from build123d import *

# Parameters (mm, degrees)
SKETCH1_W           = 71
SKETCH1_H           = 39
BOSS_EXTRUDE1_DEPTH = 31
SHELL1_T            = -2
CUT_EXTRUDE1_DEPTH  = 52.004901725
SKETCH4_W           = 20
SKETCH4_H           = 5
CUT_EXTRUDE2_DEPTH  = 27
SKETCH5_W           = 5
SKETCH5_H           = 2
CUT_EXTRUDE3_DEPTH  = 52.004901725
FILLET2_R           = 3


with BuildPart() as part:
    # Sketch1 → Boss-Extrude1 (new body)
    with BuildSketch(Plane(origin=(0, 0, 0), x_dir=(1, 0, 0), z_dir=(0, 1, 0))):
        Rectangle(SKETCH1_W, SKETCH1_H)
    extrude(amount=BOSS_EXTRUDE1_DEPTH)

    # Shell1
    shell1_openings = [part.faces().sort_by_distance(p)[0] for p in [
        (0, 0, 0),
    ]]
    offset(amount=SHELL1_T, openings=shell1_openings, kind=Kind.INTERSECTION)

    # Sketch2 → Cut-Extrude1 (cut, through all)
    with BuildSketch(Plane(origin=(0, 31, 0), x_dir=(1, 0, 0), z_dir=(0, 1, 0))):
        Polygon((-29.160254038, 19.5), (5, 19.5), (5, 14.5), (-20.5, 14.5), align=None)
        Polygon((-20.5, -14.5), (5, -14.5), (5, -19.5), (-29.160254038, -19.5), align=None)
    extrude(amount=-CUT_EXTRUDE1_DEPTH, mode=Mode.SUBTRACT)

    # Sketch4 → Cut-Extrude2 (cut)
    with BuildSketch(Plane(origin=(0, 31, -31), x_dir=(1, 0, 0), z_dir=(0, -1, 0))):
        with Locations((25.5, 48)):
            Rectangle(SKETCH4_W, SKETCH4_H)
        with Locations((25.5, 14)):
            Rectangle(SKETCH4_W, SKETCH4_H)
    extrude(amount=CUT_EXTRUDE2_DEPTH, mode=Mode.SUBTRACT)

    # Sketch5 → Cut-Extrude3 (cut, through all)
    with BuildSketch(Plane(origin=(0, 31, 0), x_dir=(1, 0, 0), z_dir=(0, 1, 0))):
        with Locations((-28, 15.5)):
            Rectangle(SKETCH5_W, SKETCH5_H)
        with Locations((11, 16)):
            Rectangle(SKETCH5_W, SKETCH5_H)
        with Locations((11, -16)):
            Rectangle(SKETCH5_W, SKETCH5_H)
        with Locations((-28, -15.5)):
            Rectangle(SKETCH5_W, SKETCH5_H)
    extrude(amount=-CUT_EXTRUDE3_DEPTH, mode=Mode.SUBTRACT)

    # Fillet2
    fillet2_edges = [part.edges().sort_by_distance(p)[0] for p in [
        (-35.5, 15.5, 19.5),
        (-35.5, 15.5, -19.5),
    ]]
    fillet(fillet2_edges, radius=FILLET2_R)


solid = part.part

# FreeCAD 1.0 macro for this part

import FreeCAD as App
import Part
import Sketcher

V = App.Vector
Q = App.Units.Quantity


def edges_at(feature, points):
    """Names of the edges that pass closest to the given points."""
    edges = feature.Shape.Edges
    near = lambda p: min(range(len(edges)), key=lambda i: edges[i].distToShape(Part.Vertex(*p))[0])
    return sorted({f"Edge{near(p) + 1}" for p in points})


def faces_at(feature, points):
    """Names of the faces that lie closest to the given points."""
    faces = feature.Shape.Faces
    near = lambda p: min(range(len(faces)), key=lambda i: faces[i].distToShape(Part.Vertex(*p))[0])
    return sorted({f"Face{near(p) + 1}" for p in points})

doc = App.newDocument("Part")
body = doc.addObject("PartDesign::Body", "Body")

# Sketch on XZ plane
sketch1 = doc.addObject("Sketcher::SketchObject", "Sketch")
body.addObject(sketch1)
sketch1.AttachmentSupport = (doc.XZ_Plane, [""])
sketch1.MapMode = "FlatFace"
sketch1.addGeometry(Part.LineSegment(V(-35.5, -19.5, 0), V(-35.5, 19.5, 0)), False)
sketch1.addGeometry(Part.LineSegment(V(-35.5, 19.5, 0), V(35.5, 19.5, 0)), False)
sketch1.addGeometry(Part.LineSegment(V(35.5, 19.5, 0), V(35.5, -19.5, 0)), False)
sketch1.addGeometry(Part.LineSegment(V(35.5, -19.5, 0), V(-35.5, -19.5, 0)), False)
sketch1.addConstraint(Sketcher.Constraint("Coincident", 0, 2, 1, 1))
sketch1.addConstraint(Sketcher.Constraint("Coincident", 1, 2, 2, 1))
sketch1.addConstraint(Sketcher.Constraint("Coincident", 2, 2, 3, 1))
sketch1.addConstraint(Sketcher.Constraint("Coincident", 3, 2, 0, 1))
sketch1.addConstraint(Sketcher.Constraint("Vertical", 0))
sketch1.addConstraint(Sketcher.Constraint("Horizontal", 1))
sketch1.addConstraint(Sketcher.Constraint("Vertical", 2))
sketch1.addConstraint(Sketcher.Constraint("Horizontal", 3))
sketch1.addConstraint(Sketcher.Constraint("Symmetric", 0, 2, 2, 2, -1, 1))
sketch1.addConstraint(Sketcher.Constraint("DistanceX", 1, 1, 1, 2, Q("71 mm")))
sketch1.addConstraint(Sketcher.Constraint("DistanceY", 0, 1, 0, 2, Q("39 mm")))
pad1 = doc.addObject("PartDesign::Pad", "Pad")
body.addObject(pad1)
pad1.Profile = sketch1
pad1.Length = 31
pad1.Reversed = True
doc.recompute()

thickness = doc.addObject("PartDesign::Thickness", "Thickness")
body.addObject(thickness)
thickness.Base = (pad1, faces_at(pad1, [(0, 0, 0)]))
thickness.Value = 2
thickness.Reversed = True
thickness.Join = "Intersection"

# Sketch on XZ plane
sketch2 = doc.addObject("Sketcher::SketchObject", "Sketch001")
body.addObject(sketch2)
sketch2.AttachmentSupport = (doc.XZ_Plane, [""])
sketch2.MapMode = "FlatFace"
sketch2.AttachmentOffset = App.Placement(V(0, 0, -31), App.Rotation())
sketch2.addGeometry(Part.LineSegment(V(5, -19.5, 0), V(-29.160254, -19.5, 0)), False)
sketch2.addGeometry(Part.LineSegment(V(-29.160254, -19.5, 0), V(-20.5, -14.5, 0)), False)
sketch2.addGeometry(Part.LineSegment(V(-20.5, -14.5, 0), V(5, -14.5, 0)), False)
sketch2.addGeometry(Part.LineSegment(V(5, -14.5, 0), V(5, -19.5, 0)), False)
sketch2.addGeometry(Part.LineSegment(V(5, 14.5, 0), V(-20.5, 14.5, 0)), False)
sketch2.addGeometry(Part.LineSegment(V(-20.5, 14.5, 0), V(-29.160254, 19.5, 0)), False)
sketch2.addGeometry(Part.LineSegment(V(-29.160254, 19.5, 0), V(5, 19.5, 0)), False)
sketch2.addGeometry(Part.LineSegment(V(5, 19.5, 0), V(5, 14.5, 0)), False)
sketch2.addConstraint(Sketcher.Constraint("Coincident", 0, 2, 1, 1))
sketch2.addConstraint(Sketcher.Constraint("Coincident", 1, 2, 2, 1))
sketch2.addConstraint(Sketcher.Constraint("Coincident", 2, 2, 3, 1))
sketch2.addConstraint(Sketcher.Constraint("Coincident", 3, 2, 0, 1))
sketch2.addConstraint(Sketcher.Constraint("Coincident", 4, 2, 5, 1))
sketch2.addConstraint(Sketcher.Constraint("Coincident", 5, 2, 6, 1))
sketch2.addConstraint(Sketcher.Constraint("Coincident", 6, 2, 7, 1))
sketch2.addConstraint(Sketcher.Constraint("Coincident", 7, 2, 4, 1))
sketch2.addConstraint(Sketcher.Constraint("Horizontal", 0))
sketch2.addConstraint(Sketcher.Constraint("Horizontal", 2))
sketch2.addConstraint(Sketcher.Constraint("Vertical", 3))
sketch2.addConstraint(Sketcher.Constraint("Horizontal", 4))
sketch2.addConstraint(Sketcher.Constraint("Horizontal", 6))
sketch2.addConstraint(Sketcher.Constraint("Vertical", 7))
sketch2.addConstraint(Sketcher.Constraint("Symmetric", 1, 2, 4, 2, -1))
sketch2.addConstraint(Sketcher.Constraint("Symmetric", 0, 2, 5, 2, -1))
sketch2.addConstraint(Sketcher.Constraint("Vertical", 3, 2, 6, 2))
sketch2.addConstraint(Sketcher.Constraint("DistanceY", 3, 2, 3, 1, Q("5 mm")))
sketch2.addConstraint(Sketcher.Constraint("Angle", 1, Q("30 deg")))
sketch2.addConstraint(Sketcher.Constraint("DistanceX", 2, 1, 2, 2, Q("25.5 mm")))
sketch2.addConstraint(Sketcher.Constraint("DistanceX", -1, 1, 2, 2, Q("5 mm")))
sketch2.addConstraint(Sketcher.Constraint("DistanceY", 1, 2, 4, 2, Q("29 mm")))
pocket1 = doc.addObject("PartDesign::Pocket", "Pocket")
body.addObject(pocket1)
pocket1.Profile = sketch2
pocket1.Type = "ThroughAll"
pocket1.Reversed = True

# Sketch on XZ plane
sketch3 = doc.addObject("Sketcher::SketchObject", "Sketch002")
body.addObject(sketch3)
sketch3.AttachmentSupport = (doc.XZ_Plane, [""])
sketch3.MapMode = "FlatFace"
sketch3.AttachmentOffset = App.Placement(V(0, 0, -31), App.Rotation())
sketch3.addGeometry(Part.LineSegment(V(15.5, 19.5, 0), V(15.5, 14.5, 0)), False)
sketch3.addGeometry(Part.LineSegment(V(15.5, 14.5, 0), V(35.5, 14.5, 0)), False)
sketch3.addGeometry(Part.LineSegment(V(35.5, 14.5, 0), V(35.5, 19.5, 0)), False)
sketch3.addGeometry(Part.LineSegment(V(35.5, 19.5, 0), V(15.5, 19.5, 0)), False)
sketch3.addGeometry(Part.LineSegment(V(15.5, -14.5, 0), V(15.5, -19.5, 0)), False)
sketch3.addGeometry(Part.LineSegment(V(15.5, -19.5, 0), V(35.5, -19.5, 0)), False)
sketch3.addGeometry(Part.LineSegment(V(35.5, -19.5, 0), V(35.5, -14.5, 0)), False)
sketch3.addGeometry(Part.LineSegment(V(35.5, -14.5, 0), V(15.5, -14.5, 0)), False)
sketch3.addConstraint(Sketcher.Constraint("Coincident", 0, 2, 1, 1))
sketch3.addConstraint(Sketcher.Constraint("Coincident", 1, 2, 2, 1))
sketch3.addConstraint(Sketcher.Constraint("Coincident", 2, 2, 3, 1))
sketch3.addConstraint(Sketcher.Constraint("Coincident", 3, 2, 0, 1))
sketch3.addConstraint(Sketcher.Constraint("Coincident", 4, 2, 5, 1))
sketch3.addConstraint(Sketcher.Constraint("Coincident", 5, 2, 6, 1))
sketch3.addConstraint(Sketcher.Constraint("Coincident", 6, 2, 7, 1))
sketch3.addConstraint(Sketcher.Constraint("Coincident", 7, 2, 4, 1))
sketch3.addConstraint(Sketcher.Constraint("Vertical", 0))
sketch3.addConstraint(Sketcher.Constraint("Horizontal", 1))
sketch3.addConstraint(Sketcher.Constraint("Vertical", 2))
sketch3.addConstraint(Sketcher.Constraint("Horizontal", 3))
sketch3.addConstraint(Sketcher.Constraint("Vertical", 4))
sketch3.addConstraint(Sketcher.Constraint("Horizontal", 5))
sketch3.addConstraint(Sketcher.Constraint("Vertical", 6))
sketch3.addConstraint(Sketcher.Constraint("Horizontal", 7))
sketch3.addConstraint(Sketcher.Constraint("Symmetric", 3, 2, 4, 2, -1))
sketch3.addConstraint(Sketcher.Constraint("Symmetric", 1, 2, 6, 2, -1))
sketch3.addConstraint(Sketcher.Constraint("DistanceX", 1, 1, 1, 2, Q("20 mm")))
sketch3.addConstraint(Sketcher.Constraint("DistanceY", 0, 2, 0, 1, Q("5 mm")))
sketch3.addConstraint(Sketcher.Constraint("DistanceY", 4, 2, 0, 2, Q("34 mm")))
sketch3.addConstraint(Sketcher.Constraint("DistanceX", -1, 1, 0, 2, Q("15.5 mm")))
pocket2 = doc.addObject("PartDesign::Pocket", "Pocket001")
body.addObject(pocket2)
pocket2.Profile = sketch3
pocket2.Length = 27
pocket2.Reversed = True

# Sketch on XZ plane
sketch4 = doc.addObject("Sketcher::SketchObject", "Sketch003")
body.addObject(sketch4)
sketch4.AttachmentSupport = (doc.XZ_Plane, [""])
sketch4.MapMode = "FlatFace"
sketch4.AttachmentOffset = App.Placement(V(0, 0, -31), App.Rotation())
sketch4.addGeometry(Part.LineSegment(V(-30.5, -16.5, 0), V(-30.5, -14.5, 0)), False)
sketch4.addGeometry(Part.LineSegment(V(-30.5, -14.5, 0), V(-25.5, -14.5, 0)), False)
sketch4.addGeometry(Part.LineSegment(V(-25.5, -14.5, 0), V(-25.5, -16.5, 0)), False)
sketch4.addGeometry(Part.LineSegment(V(-25.5, -16.5, 0), V(-30.5, -16.5, 0)), False)
sketch4.addGeometry(Part.LineSegment(V(8.5, -17, 0), V(8.5, -15, 0)), False)
sketch4.addGeometry(Part.LineSegment(V(8.5, -15, 0), V(13.5, -15, 0)), False)
sketch4.addGeometry(Part.LineSegment(V(13.5, -15, 0), V(13.5, -17, 0)), False)
sketch4.addGeometry(Part.LineSegment(V(13.5, -17, 0), V(8.5, -17, 0)), False)
sketch4.addGeometry(Part.LineSegment(V(8.5, 15, 0), V(8.5, 17, 0)), False)
sketch4.addGeometry(Part.LineSegment(V(8.5, 17, 0), V(13.5, 17, 0)), False)
sketch4.addGeometry(Part.LineSegment(V(13.5, 17, 0), V(13.5, 15, 0)), False)
sketch4.addGeometry(Part.LineSegment(V(13.5, 15, 0), V(8.5, 15, 0)), False)
sketch4.addGeometry(Part.LineSegment(V(-30.5, 14.5, 0), V(-30.5, 16.5, 0)), False)
sketch4.addGeometry(Part.LineSegment(V(-30.5, 16.5, 0), V(-25.5, 16.5, 0)), False)
sketch4.addGeometry(Part.LineSegment(V(-25.5, 16.5, 0), V(-25.5, 14.5, 0)), False)
sketch4.addGeometry(Part.LineSegment(V(-25.5, 14.5, 0), V(-30.5, 14.5, 0)), False)
sketch4.addConstraint(Sketcher.Constraint("Coincident", 0, 2, 1, 1))
sketch4.addConstraint(Sketcher.Constraint("Coincident", 1, 2, 2, 1))
sketch4.addConstraint(Sketcher.Constraint("Coincident", 2, 2, 3, 1))
sketch4.addConstraint(Sketcher.Constraint("Coincident", 3, 2, 0, 1))
sketch4.addConstraint(Sketcher.Constraint("Coincident", 4, 2, 5, 1))
sketch4.addConstraint(Sketcher.Constraint("Coincident", 5, 2, 6, 1))
sketch4.addConstraint(Sketcher.Constraint("Coincident", 6, 2, 7, 1))
sketch4.addConstraint(Sketcher.Constraint("Coincident", 7, 2, 4, 1))
sketch4.addConstraint(Sketcher.Constraint("Coincident", 8, 2, 9, 1))
sketch4.addConstraint(Sketcher.Constraint("Coincident", 9, 2, 10, 1))
sketch4.addConstraint(Sketcher.Constraint("Coincident", 10, 2, 11, 1))
sketch4.addConstraint(Sketcher.Constraint("Coincident", 11, 2, 8, 1))
sketch4.addConstraint(Sketcher.Constraint("Coincident", 12, 2, 13, 1))
sketch4.addConstraint(Sketcher.Constraint("Coincident", 13, 2, 14, 1))
sketch4.addConstraint(Sketcher.Constraint("Coincident", 14, 2, 15, 1))
sketch4.addConstraint(Sketcher.Constraint("Coincident", 15, 2, 12, 1))
sketch4.addConstraint(Sketcher.Constraint("Vertical", 0))
sketch4.addConstraint(Sketcher.Constraint("Horizontal", 1))
sketch4.addConstraint(Sketcher.Constraint("Vertical", 2))
sketch4.addConstraint(Sketcher.Constraint("Horizontal", 3))
sketch4.addConstraint(Sketcher.Constraint("Vertical", 4))
sketch4.addConstraint(Sketcher.Constraint("Horizontal", 5))
sketch4.addConstraint(Sketcher.Constraint("Vertical", 6))
sketch4.addConstraint(Sketcher.Constraint("Horizontal", 7))
sketch4.addConstraint(Sketcher.Constraint("Vertical", 8))
sketch4.addConstraint(Sketcher.Constraint("Horizontal", 9))
sketch4.addConstraint(Sketcher.Constraint("Vertical", 10))
sketch4.addConstraint(Sketcher.Constraint("Horizontal", 11))
sketch4.addConstraint(Sketcher.Constraint("Vertical", 12))
sketch4.addConstraint(Sketcher.Constraint("Horizontal", 13))
sketch4.addConstraint(Sketcher.Constraint("Vertical", 14))
sketch4.addConstraint(Sketcher.Constraint("Horizontal", 15))
sketch4.addConstraint(Sketcher.Constraint("Symmetric", 7, 2, 8, 2, -1))
sketch4.addConstraint(Sketcher.Constraint("Symmetric", 5, 2, 10, 2, -1))
sketch4.addConstraint(Sketcher.Constraint("Symmetric", 3, 2, 12, 2, -1))
sketch4.addConstraint(Sketcher.Constraint("Symmetric", 1, 2, 14, 2, -1))
sketch4.addConstraint(Sketcher.Constraint("Equal", 3, 5))
sketch4.addConstraint(Sketcher.Constraint("Equal", 2, 4))
sketch4.addConstraint(Sketcher.Constraint("DistanceX", 1, 1, 1, 2, Q("5 mm")))
sketch4.addConstraint(Sketcher.Constraint("DistanceY", 0, 1, 0, 2, Q("2 mm")))
sketch4.addConstraint(Sketcher.Constraint("DistanceY", 4, 2, -1, 1, Q("15 mm")))
sketch4.addConstraint(Sketcher.Constraint("DistanceX", 1, 2, 4, 2, Q("34 mm")))
sketch4.addConstraint(Sketcher.Constraint("DistanceY", 0, 2, 12, 2, Q("31 mm")))
sketch4.addConstraint(Sketcher.Constraint("DistanceX", 0, 2, -1, 1, Q("30.5 mm")))
pocket3 = doc.addObject("PartDesign::Pocket", "Pocket002")
body.addObject(pocket3)
pocket3.Profile = sketch4
pocket3.Type = "ThroughAll"
pocket3.Reversed = True
doc.recompute()

fillet = doc.addObject("PartDesign::Fillet", "Fillet")
body.addObject(fillet)
fillet.Base = (pocket3, edges_at(pocket3, [(-35.5, 15.5, 19.5), (-35.5, 15.5, -19.5)]))
fillet.Radius = 3

doc.recompute()
